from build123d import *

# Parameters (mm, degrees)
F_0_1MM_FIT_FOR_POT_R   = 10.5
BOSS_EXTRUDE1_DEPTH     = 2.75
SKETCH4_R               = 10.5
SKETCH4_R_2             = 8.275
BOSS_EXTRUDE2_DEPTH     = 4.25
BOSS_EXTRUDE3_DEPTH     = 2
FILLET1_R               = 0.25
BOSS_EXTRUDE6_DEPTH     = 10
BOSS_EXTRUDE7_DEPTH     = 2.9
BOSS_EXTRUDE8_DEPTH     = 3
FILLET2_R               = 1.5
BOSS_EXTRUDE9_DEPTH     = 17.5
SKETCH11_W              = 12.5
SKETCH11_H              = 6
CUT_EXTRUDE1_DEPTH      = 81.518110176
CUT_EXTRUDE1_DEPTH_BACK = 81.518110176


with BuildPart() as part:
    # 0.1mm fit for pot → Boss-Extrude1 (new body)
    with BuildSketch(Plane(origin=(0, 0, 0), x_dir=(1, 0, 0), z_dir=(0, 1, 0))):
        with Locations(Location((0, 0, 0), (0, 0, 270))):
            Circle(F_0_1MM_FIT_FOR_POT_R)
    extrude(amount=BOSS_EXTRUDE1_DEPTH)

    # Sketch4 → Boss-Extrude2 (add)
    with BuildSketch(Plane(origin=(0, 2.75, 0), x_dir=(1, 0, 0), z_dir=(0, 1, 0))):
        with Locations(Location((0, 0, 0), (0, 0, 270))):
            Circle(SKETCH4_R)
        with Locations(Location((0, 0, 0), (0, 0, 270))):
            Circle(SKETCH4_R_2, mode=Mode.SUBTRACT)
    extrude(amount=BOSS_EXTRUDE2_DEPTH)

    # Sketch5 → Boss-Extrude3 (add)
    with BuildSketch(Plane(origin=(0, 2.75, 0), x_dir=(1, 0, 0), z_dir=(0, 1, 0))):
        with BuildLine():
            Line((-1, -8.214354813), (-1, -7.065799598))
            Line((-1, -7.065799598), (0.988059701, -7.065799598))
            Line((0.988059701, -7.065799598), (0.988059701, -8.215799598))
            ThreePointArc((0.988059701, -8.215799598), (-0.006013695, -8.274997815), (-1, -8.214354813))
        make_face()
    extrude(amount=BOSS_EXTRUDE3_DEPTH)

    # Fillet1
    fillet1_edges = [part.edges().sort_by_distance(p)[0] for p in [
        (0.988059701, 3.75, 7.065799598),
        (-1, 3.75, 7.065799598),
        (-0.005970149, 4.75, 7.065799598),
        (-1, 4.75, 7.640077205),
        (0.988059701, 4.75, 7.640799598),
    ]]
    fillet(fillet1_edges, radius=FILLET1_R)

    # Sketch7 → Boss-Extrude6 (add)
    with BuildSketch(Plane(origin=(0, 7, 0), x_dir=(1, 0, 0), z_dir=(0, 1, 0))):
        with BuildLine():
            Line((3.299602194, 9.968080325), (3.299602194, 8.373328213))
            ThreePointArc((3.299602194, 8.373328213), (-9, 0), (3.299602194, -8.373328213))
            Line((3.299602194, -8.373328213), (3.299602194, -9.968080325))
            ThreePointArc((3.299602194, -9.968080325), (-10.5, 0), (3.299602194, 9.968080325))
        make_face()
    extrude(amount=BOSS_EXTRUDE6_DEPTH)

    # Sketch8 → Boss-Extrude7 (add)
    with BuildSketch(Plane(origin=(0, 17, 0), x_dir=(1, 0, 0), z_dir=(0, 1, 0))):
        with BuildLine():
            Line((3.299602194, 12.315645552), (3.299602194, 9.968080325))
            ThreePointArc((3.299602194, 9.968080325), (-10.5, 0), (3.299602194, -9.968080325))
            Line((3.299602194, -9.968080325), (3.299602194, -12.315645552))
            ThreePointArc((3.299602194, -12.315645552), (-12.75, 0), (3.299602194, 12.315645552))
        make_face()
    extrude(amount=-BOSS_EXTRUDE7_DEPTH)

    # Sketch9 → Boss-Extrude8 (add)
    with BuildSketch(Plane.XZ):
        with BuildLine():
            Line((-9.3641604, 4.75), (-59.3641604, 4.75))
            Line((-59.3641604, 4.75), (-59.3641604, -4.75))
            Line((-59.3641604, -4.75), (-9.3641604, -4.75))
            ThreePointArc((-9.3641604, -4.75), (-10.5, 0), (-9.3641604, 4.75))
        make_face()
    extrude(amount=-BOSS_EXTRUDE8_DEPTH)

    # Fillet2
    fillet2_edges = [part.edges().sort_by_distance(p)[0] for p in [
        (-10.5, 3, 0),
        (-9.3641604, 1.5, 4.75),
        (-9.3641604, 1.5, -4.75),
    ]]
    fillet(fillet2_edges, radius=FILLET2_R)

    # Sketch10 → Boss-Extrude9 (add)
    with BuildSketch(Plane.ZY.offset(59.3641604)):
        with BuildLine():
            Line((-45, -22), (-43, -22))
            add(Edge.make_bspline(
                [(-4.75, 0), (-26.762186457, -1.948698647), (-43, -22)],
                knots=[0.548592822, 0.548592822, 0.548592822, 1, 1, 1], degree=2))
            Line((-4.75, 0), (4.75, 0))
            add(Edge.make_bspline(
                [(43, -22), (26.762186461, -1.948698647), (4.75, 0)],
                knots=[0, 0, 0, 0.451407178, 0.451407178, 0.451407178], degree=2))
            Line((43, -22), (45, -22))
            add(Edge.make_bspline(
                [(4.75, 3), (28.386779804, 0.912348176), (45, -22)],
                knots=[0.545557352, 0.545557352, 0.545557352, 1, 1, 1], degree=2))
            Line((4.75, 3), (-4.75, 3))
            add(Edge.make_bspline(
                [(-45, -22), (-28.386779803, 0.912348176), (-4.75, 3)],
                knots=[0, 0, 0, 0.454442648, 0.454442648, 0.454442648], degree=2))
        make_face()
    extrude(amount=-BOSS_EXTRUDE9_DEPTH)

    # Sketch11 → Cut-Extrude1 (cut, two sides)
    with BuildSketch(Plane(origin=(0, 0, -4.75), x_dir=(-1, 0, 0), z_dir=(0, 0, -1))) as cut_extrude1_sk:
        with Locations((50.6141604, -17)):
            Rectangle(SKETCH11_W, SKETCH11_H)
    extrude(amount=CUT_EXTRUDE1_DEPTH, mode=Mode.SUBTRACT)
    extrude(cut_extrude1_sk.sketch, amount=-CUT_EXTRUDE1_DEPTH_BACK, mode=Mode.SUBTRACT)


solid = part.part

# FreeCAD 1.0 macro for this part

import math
import FreeCAD as App
import Part
import Sketcher
from FreeCAD import Vector


def edges_at(feature, points):
    """Names of the edges that pass closest to the given points."""
    edges = feature.Shape.Edges
    near = lambda p: min(range(len(edges)), key=lambda i: edges[i].distToShape(Part.Vertex(*p))[0])
    return sorted({f"Edge{near(p) + 1}" for p in points})


def add_polygon(sketch, points):
    """Adds a closed chain of lines whose ends are joined by coincident constraints."""
    first, n = sketch.GeometryCount, len(points)
    for a, b in zip(points, points[1:] + points[:1]):
        sketch.addGeometry(Part.LineSegment(App.Vector(*a, 0), App.Vector(*b, 0)), False)
    for i in range(n):
        sketch.addConstraint(Sketcher.Constraint("Coincident", first + i, 2, first + (i + 1) % n, 1))

doc = App.newDocument("Part")
body = doc.addObject("PartDesign::Body", "Body")

# Sketch on XZ plane
sketch1 = body.newObject("Sketcher::SketchObject", "Sketch")
sketch1.AttachmentSupport = (doc.getObject("XZ_Plane"), [""])
sketch1.MapMode = "FlatFace"
sketch1.addGeometry(Part.Circle(Vector(0, 0, 0), Vector(0, 0, 1), 10), False)
sketch1.addConstraint([
    Sketcher.Constraint("Coincident", 0, 3, -1, 1),
    Sketcher.Constraint("Diameter", 0, 21.0),
])
pad1 = body.newObject("PartDesign::Pad", "Pad")
pad1.Profile = sketch1
pad1.Length = 2.75
pad1.Reversed = True

# Sketch on XZ plane
sketch2 = body.newObject("Sketcher::SketchObject", "Sketch001")
sketch2.AttachmentSupport = (doc.getObject("XZ_Plane"), [""])
sketch2.MapMode = "FlatFace"
sketch2.AttachmentOffset = App.Placement(Vector(0, 0, -2.75), App.Rotation())
sketch2.addGeometry([
    Part.Circle(Vector(0, 0, 0), Vector(0, 0, 1), 10),
    Part.Circle(Vector(0, 0, 0), Vector(0, 0, 1), 8),
], False)
sketch2.addConstraint([
    Sketcher.Constraint("Coincident", 0, 3, -1, 1),
    Sketcher.Constraint("Coincident", 1, 3, -1, 1),
    Sketcher.Constraint("Diameter", 0, 21.0),
    Sketcher.Constraint("Diameter", 1, 16.55),
])
pad2 = body.newObject("PartDesign::Pad", "Pad001")
pad2.Profile = sketch2
pad2.Length = 4.25
pad2.Reversed = True

# Sketch on XZ plane
sketch3 = body.newObject("Sketcher::SketchObject", "Sketch002")
sketch3.AttachmentSupport = (doc.getObject("XZ_Plane"), [""])
sketch3.MapMode = "FlatFace"
sketch3.AttachmentOffset = App.Placement(Vector(0, 0, -2.75), App.Rotation())
sketch3.addGeometry([
    Part.LineSegment(Vector(-1, 7.1, 0), Vector(-1, 8.2, 0)),
    Part.ArcOfCircle(Part.Circle(Vector(0, 0, 0), Vector(0, 0, 1), 8.3), math.radians(83.14), math.radians(96.94)),
    Part.LineSegment(Vector(1, 8.2, 0), Vector(1, 7.1, 0)),
    Part.LineSegment(Vector(1, 7.1, 0), Vector(-1, 7.1, 0)),
], False)
sketch3.addConstraint([
    Sketcher.Constraint("Coincident", 0, 2, 1, 2),
    Sketcher.Constraint("Coincident", 1, 1, 2, 1),
    Sketcher.Constraint("Coincident", 2, 2, 3, 1),
    Sketcher.Constraint("Coincident", 3, 2, 0, 1),
    Sketcher.Constraint("Vertical", 0),
    Sketcher.Constraint("Vertical", 2),
    Sketcher.Constraint("Horizontal", 3),
    Sketcher.Constraint("Coincident", 1, 3, -1, 1),
    Sketcher.Constraint("DistanceX", 0, 2, -1, 1, 1.0),
    Sketcher.Constraint("Radius", 1, 8.275),
    Sketcher.Constraint("DistanceY", 2, 2, 2, 1, 1.15),
    Sketcher.Constraint("DistanceX", 3, 2, 3, 1, 1.98806),
])
pad3 = body.newObject("PartDesign::Pad", "Pad002")
pad3.Profile = sketch3
pad3.Length = 2
pad3.Reversed = True
doc.recompute()

fillet = body.newObject("PartDesign::Fillet", "Fillet")
fillet.Base = (pad3, edges_at(pad3, [
    (0.988, 3.75, 7.066),
    (-1, 3.75, 7.066),
    (-0.006, 4.75, 7.066),
    (-1, 4.75, 7.64),
    (0.988, 4.75, 7.641),
]))
fillet.Radius = 0.25

# Sketch on XZ plane
sketch4 = body.newObject("Sketcher::SketchObject", "Sketch003")
sketch4.AttachmentSupport = (doc.getObject("XZ_Plane"), [""])
sketch4.MapMode = "FlatFace"
sketch4.AttachmentOffset = App.Placement(Vector(0, 0, -7), App.Rotation())
sketch4.addGeometry([
    Part.LineSegment(Vector(3.3, -8.4, 0), Vector(3.3, -10, 0)),
    Part.ArcOfCircle(Part.Circle(Vector(0, 0, 0), Vector(0, 0, 1), 10.5), math.radians(72), math.radians(288)),
    Part.LineSegment(Vector(3.3, 10, 0), Vector(3.3, 8.4, 0)),
    Part.ArcOfCircle(Part.Circle(Vector(0, 0, 0), Vector(0, 0, 1), 9), math.radians(68), math.radians(292)),
], False)
sketch4.addConstraint([
    Sketcher.Constraint("Coincident", 0, 2, 1, 2),
    Sketcher.Constraint("Coincident", 1, 1, 2, 1),
    Sketcher.Constraint("Coincident", 2, 2, 3, 1),
    Sketcher.Constraint("Coincident", 3, 2, 0, 1),
    Sketcher.Constraint("Vertical", 0),
    Sketcher.Constraint("Vertical", 2),
    Sketcher.Constraint("Coincident", 1, 3, -1, 1),
    Sketcher.Constraint("Coincident", 3, 3, -1, 1),
    Sketcher.Constraint("Vertical", 0, 2, 1, 1),
    Sketcher.Constraint("Radius", 3, 9.0),
    Sketcher.Constraint("Radius", 1, 10.5),
    Sketcher.Constraint("DistanceY", 0, 2, 0, 1, 1.594752),
])
pad4 = body.newObject("PartDesign::Pad", "Pad003")
pad4.Profile = sketch4
pad4.Length = 10
pad4.Reversed = True

# Sketch on XZ plane
sketch5 = body.newObject("Sketcher::SketchObject", "Sketch004")
sketch5.AttachmentSupport = (doc.getObject("XZ_Plane"), [""])
sketch5.MapMode = "FlatFace"
sketch5.AttachmentOffset = App.Placement(Vector(0, 0, -17), App.Rotation())
sketch5.addGeometry([
    Part.LineSegment(Vector(3.3, -10, 0), Vector(3.3, -12.3, 0)),
    Part.ArcOfCircle(Part.Circle(Vector(0, 0, 0), Vector(0, 0, 1), 12.8), math.radians(75), math.radians(285)),
    Part.LineSegment(Vector(3.3, 12.3, 0), Vector(3.3, 10, 0)),
    Part.ArcOfCircle(Part.Circle(Vector(0, 0, 0), Vector(0, 0, 1), 10.5), math.radians(72), math.radians(288)),
], False)
sketch5.addConstraint([
    Sketcher.Constraint("Coincident", 0, 2, 1, 2),
    Sketcher.Constraint("Coincident", 1, 1, 2, 1),
    Sketcher.Constraint("Coincident", 2, 2, 3, 1),
    Sketcher.Constraint("Coincident", 3, 2, 0, 1),
    Sketcher.Constraint("Vertical", 0),
    Sketcher.Constraint("Vertical", 2),
    Sketcher.Constraint("Coincident", 1, 3, -1, 1),
    Sketcher.Constraint("Coincident", 3, 3, -1, 1),
    Sketcher.Constraint("Vertical", 0, 2, 1, 1),
    Sketcher.Constraint("Radius", 3, 10.5),
    Sketcher.Constraint("Radius", 1, 12.75),
    Sketcher.Constraint("DistanceY", 0, 2, 0, 1, 2.347565),
])
pad5 = body.newObject("PartDesign::Pad", "Pad004")
pad5.Profile = sketch5
pad5.Length = 2.9

# Sketch on XZ plane
sketch6 = body.newObject("Sketcher::SketchObject", "Sketch005")
sketch6.AttachmentSupport = (doc.getObject("XZ_Plane"), [""])
sketch6.MapMode = "FlatFace"
sketch6.addGeometry([
    Part.LineSegment(Vector(-9, 5, 0), Vector(-59, 5, 0)),
    Part.LineSegment(Vector(-59, 5, 0), Vector(-59, -5, 0)),
    Part.LineSegment(Vector(-59, -5, 0), Vector(-9, -5, 0)),
    Part.ArcOfCircle(Part.Circle(Vector(0, 0, 0), Vector(0, 0, 1), 10), math.radians(153), math.radians(207)),
], False)
sketch6.addConstraint([
    Sketcher.Constraint("Coincident", 0, 2, 1, 1),
    Sketcher.Constraint("Coincident", 1, 2, 2, 1),
    Sketcher.Constraint("Coincident", 2, 2, 3, 2),
    Sketcher.Constraint("Coincident", 3, 1, 0, 1),
    Sketcher.Constraint("Horizontal", 0),
    Sketcher.Constraint("Vertical", 1),
    Sketcher.Constraint("Horizontal", 2),
    Sketcher.Constraint("Coincident", 3, 3, -1, 1),
    Sketcher.Constraint("Vertical", 2, 2, 3, 1),
    Sketcher.Constraint("Radius", 3, 10.5),
    Sketcher.Constraint("DistanceX", 0, 2, 0, 1, 50.0),
    Sketcher.Constraint("DistanceY", 1, 2, 1, 1, 9.5),
])
pad6 = body.newObject("PartDesign::Pad", "Pad005")
pad6.Profile = sketch6
pad6.Length = 3
pad6.Reversed = True
doc.recompute()

fillet2 = body.newObject("PartDesign::Fillet", "Fillet001")
fillet2.Base = (pad6, edges_at(pad6, [(-10.5, 3, 0), (-9.364, 1.5, 4.75), (-9.364, 1.5, -4.75)]))
fillet2.Radius = 1.5

# Sketch on YZ plane
sketch7 = body.newObject("Sketcher::SketchObject", "Sketch006")
sketch7.AttachmentSupport = (doc.getObject("YZ_Plane"), [""])
sketch7.MapMode = "FlatFace"
sketch7.AttachmentOffset = App.Placement(Vector(0, 0, -59.36416), App.Rotation())
sketch7.addGeometry([
    Part.LineSegment(Vector(-22, -45, 0), Vector(-22, -43, 0)),  # 0
    Part.BSplineCurve([Vector(0, -4.75, 0), Vector(-1.948699, -26.762186, 0), Vector(-22, -43, 0)], [3, 3], [0.548592822, 1], False, 2, [1, 1, 1], False),  # 1
    Part.LineSegment(Vector(0, -4.75, 0), Vector(0, 4.75, 0)),  # 2
    Part.BSplineCurve([Vector(-22, 43, 0), Vector(-1.948699, 26.762186, 0), Vector(0, 4.75, 0)], [3, 3], [0, 0.451407178], False, 2, [1, 1, 1], False),  # 3
    Part.LineSegment(Vector(-22, 43, 0), Vector(-22, 45, 0)),  # 4
    Part.BSplineCurve([Vector(3, 4.75, 0), Vector(0.912348, 28.38678, 0), Vector(-22, 45, 0)], [3, 3], [0.545557352, 1], False, 2, [1, 1, 1], False),  # 5
    Part.LineSegment(Vector(3, 4.75, 0), Vector(3, -4.75, 0)),  # 6
    Part.BSplineCurve([Vector(-22, -45, 0), Vector(0.912348, -28.38678, 0), Vector(3, -4.75, 0)], [3, 3], [0, 0.454442648], False, 2, [1, 1, 1], False),  # 7
], False)
sketch7.addConstraint([
    Sketcher.Constraint("Block", 1),
    Sketcher.Constraint("Block", 3),
    Sketcher.Constraint("Block", 5),
    Sketcher.Constraint("Block", 7),
    Sketcher.Constraint("Coincident", 0, 2, 1, 2),
    Sketcher.Constraint("Coincident", 1, 1, 2, 1),
    Sketcher.Constraint("Coincident", 2, 2, 3, 2),
    Sketcher.Constraint("Coincident", 3, 1, 4, 1),
    Sketcher.Constraint("Coincident", 4, 2, 5, 2),
    Sketcher.Constraint("Coincident", 5, 1, 6, 1),
    Sketcher.Constraint("Coincident", 6, 2, 7, 2),
    Sketcher.Constraint("Coincident", 7, 1, 0, 1),
])
pad7 = body.newObject("PartDesign::Pad", "Pad006")
pad7.Profile = sketch7
pad7.Length = 17.5

# Sketch on XY plane
sketch8 = body.newObject("Sketcher::SketchObject", "Sketch007")
sketch8.AttachmentSupport = (doc.getObject("XY_Plane"), [""])
sketch8.MapMode = "FlatFace"
sketch8.AttachmentOffset = App.Placement(Vector(0, 0, -4.75), App.Rotation())
add_polygon(sketch8, [(-44, -14), (-44, -20), (-57, -20), (-57, -14)])  # lines 0-3
sketch8.addConstraint([
    Sketcher.Constraint("Vertical", 0),
    Sketcher.Constraint("Horizontal", 1),
    Sketcher.Constraint("Vertical", 2),
    Sketcher.Constraint("Horizontal", 3),
    Sketcher.Constraint("DistanceY", 0, 2, 0, 1, 6.0),
    Sketcher.Constraint("DistanceX", 1, 2, 1, 1, 12.5),
    Sketcher.Constraint("DistanceY", 0, 2, -1, 1, 20.0),
    Sketcher.Constraint("DistanceX", 0, 2, -1, 1, 44.36416),
])
pocket1 = body.newObject("PartDesign::Pocket", "Pocket")
pocket1.Profile = sketch8
pocket1.Type = "ThroughAll"
pocket1.Midplane = True

doc.recompute()
